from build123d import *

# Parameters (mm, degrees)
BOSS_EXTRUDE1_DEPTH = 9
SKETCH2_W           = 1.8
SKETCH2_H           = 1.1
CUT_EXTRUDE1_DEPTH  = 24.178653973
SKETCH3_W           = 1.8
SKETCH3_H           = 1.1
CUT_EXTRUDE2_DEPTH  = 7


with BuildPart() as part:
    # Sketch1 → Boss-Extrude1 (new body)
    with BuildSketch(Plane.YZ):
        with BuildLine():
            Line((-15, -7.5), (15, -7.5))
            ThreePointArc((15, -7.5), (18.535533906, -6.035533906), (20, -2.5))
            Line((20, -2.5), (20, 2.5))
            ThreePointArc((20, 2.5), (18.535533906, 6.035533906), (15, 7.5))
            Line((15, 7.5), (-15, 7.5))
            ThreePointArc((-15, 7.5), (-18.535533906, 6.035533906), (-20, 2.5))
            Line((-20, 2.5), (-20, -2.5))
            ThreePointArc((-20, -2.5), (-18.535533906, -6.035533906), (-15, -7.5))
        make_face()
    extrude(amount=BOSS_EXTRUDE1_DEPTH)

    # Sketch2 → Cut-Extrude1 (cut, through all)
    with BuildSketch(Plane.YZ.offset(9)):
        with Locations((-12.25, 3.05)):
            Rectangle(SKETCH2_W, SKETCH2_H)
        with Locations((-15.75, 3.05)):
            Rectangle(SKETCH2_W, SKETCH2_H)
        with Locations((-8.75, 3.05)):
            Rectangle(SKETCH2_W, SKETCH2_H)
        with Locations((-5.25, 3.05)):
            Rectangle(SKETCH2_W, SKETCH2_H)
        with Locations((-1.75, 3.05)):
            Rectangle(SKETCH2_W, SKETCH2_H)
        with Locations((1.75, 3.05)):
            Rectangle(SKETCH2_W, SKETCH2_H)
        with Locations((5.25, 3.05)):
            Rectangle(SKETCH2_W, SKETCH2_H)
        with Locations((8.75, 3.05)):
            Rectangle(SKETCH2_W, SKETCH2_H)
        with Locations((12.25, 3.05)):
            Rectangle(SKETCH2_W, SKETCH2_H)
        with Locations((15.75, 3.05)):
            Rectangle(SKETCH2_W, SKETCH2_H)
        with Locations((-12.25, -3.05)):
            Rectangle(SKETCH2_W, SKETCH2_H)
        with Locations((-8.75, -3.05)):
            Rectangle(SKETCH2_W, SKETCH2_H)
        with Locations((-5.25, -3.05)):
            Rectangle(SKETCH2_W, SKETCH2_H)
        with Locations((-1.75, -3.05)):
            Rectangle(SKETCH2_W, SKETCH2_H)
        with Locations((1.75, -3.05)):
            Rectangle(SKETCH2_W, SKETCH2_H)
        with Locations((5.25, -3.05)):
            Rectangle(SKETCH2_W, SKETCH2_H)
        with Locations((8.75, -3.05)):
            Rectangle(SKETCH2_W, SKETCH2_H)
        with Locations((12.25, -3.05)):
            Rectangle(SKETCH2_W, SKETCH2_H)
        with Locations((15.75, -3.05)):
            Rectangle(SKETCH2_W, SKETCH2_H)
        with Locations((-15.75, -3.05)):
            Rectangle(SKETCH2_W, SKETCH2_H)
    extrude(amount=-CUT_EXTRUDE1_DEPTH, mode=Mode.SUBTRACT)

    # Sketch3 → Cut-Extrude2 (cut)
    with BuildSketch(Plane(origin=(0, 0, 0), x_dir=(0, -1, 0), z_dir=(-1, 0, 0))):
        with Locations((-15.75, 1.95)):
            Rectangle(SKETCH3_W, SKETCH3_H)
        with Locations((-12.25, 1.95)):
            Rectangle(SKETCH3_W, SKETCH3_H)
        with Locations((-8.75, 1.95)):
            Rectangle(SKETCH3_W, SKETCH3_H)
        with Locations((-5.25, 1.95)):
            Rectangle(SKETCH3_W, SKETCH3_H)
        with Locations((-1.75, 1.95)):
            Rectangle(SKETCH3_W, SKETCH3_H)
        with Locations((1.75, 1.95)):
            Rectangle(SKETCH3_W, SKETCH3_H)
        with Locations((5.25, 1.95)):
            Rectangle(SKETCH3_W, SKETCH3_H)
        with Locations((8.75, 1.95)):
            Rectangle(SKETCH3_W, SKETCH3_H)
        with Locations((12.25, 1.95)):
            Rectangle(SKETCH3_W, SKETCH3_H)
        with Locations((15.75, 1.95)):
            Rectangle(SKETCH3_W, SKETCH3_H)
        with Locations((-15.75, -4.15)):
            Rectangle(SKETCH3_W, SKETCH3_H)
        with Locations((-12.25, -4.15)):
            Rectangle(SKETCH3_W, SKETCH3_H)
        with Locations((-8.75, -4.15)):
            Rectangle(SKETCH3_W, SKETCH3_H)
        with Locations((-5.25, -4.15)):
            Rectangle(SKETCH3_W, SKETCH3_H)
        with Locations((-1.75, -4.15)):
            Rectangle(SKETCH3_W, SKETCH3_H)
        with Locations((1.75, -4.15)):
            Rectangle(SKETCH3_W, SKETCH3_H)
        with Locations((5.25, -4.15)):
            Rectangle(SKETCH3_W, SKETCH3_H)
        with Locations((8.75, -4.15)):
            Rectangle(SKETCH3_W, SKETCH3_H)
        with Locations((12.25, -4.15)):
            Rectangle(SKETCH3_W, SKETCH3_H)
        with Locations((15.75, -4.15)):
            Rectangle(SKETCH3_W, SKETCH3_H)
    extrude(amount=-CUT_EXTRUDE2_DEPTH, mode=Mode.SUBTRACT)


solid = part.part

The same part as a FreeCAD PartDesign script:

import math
import FreeCAD as App
import Part
import Sketcher

doc = App.newDocument("Part")
body = doc.addObject("PartDesign::Body", "Body")

sketch1 = doc.addObject("Sketcher::SketchObject", "Sketch")
body.addObject(sketch1)
sketch1.AttachmentSupport = (doc.YZ_Plane, [""])
sketch1.MapMode = "FlatFace"
sketch1.addGeometry(Part.LineSegment(App.Vector(-15, -7.5, 0), App.Vector(15, -7.5, 0)), False)
sketch1.addGeometry(Part.ArcOfCircle(Part.Circle(App.Vector(15, -2.5, 0), App.Vector(0, 0, 1), 5), math.radians(-90), math.radians(0)), False)
sketch1.addGeometry(Part.LineSegment(App.Vector(20, -2.5, 0), App.Vector(20, 2.5, 0)), False)
sketch1.addGeometry(Part.ArcOfCircle(Part.Circle(App.Vector(15, 2.5, 0), App.Vector(0, 0, 1), 5), math.radians(0), math.radians(90)), False)
sketch1.addGeometry(Part.LineSegment(App.Vector(15, 7.5, 0), App.Vector(-15, 7.5, 0)), False)
sketch1.addGeometry(Part.ArcOfCircle(Part.Circle(App.Vector(-15, 2.5, 0), App.Vector(0, 0, 1), 5), math.radians(90), math.radians(180)), False)
sketch1.addGeometry(Part.LineSegment(App.Vector(-20, 2.5, 0), App.Vector(-20, -2.5, 0)), False)
sketch1.addGeometry(Part.ArcOfCircle(Part.Circle(App.Vector(-15, -2.5, 0), App.Vector(0, 0, 1), 5), math.radians(180), math.radians(270)), False)
sketch1.addConstraint(Sketcher.Constraint("Tangent", 0, 2, 1, 1))
sketch1.addConstraint(Sketcher.Constraint("Tangent", 1, 2, 2, 1))
sketch1.addConstraint(Sketcher.Constraint("Tangent", 2, 2, 3, 1))
sketch1.addConstraint(Sketcher.Constraint("Tangent", 3, 2, 4, 1))
sketch1.addConstraint(Sketcher.Constraint("Tangent", 4, 2, 5, 1))
sketch1.addConstraint(Sketcher.Constraint("Tangent", 5, 2, 6, 1))
sketch1.addConstraint(Sketcher.Constraint("Tangent", 6, 2, 7, 1))
sketch1.addConstraint(Sketcher.Constraint("Tangent", 7, 2, 0, 1))
sketch1.addConstraint(Sketcher.Constraint("Horizontal", 0))
sketch1.addConstraint(Sketcher.Constraint("Vertical", 2))
sketch1.addConstraint(Sketcher.Constraint("Horizontal", 4))
sketch1.addConstraint(Sketcher.Constraint("Vertical", 6))
sketch1.addConstraint(Sketcher.Constraint("Equal", 1, 3))
sketch1.addConstraint(Sketcher.Constraint("Equal", 3, 5))
sketch1.addConstraint(Sketcher.Constraint("Equal", 5, 7))
sketch1.addConstraint(Sketcher.Constraint("Symmetric", 1, 3, 5, 3, -1, 1))
sketch1.addConstraint(Sketcher.Constraint("Radius", 1, 5.0))
sketch1.addConstraint(Sketcher.Constraint("DistanceX", 0, 1, 0, 2, 30.0))
sketch1.addConstraint(Sketcher.Constraint("DistanceY", 2, 1, 2, 2, 5.0))
pad1 = doc.addObject("PartDesign::Pad", "Pad")
body.addObject(pad1)
pad1.Profile = sketch1
pad1.Length = 9

sketch2 = doc.addObject("Sketcher::SketchObject", "Sketch001")
body.addObject(sketch2)
sketch2.AttachmentSupport = (doc.YZ_Plane, [""])
sketch2.MapMode = "FlatFace"
sketch2.AttachmentOffset = App.Placement(App.Vector(0, 0, 9), App.Rotation())
sketch2.addGeometry(Part.LineSegment(App.Vector(-13.15, 3.6, 0), App.Vector(-13.15, 2.5, 0)), False)
sketch2.addGeometry(Part.LineSegment(App.Vector(-13.15, 2.5, 0), App.Vector(-11.35, 2.5, 0)), False)
sketch2.addGeometry(Part.LineSegment(App.Vector(-11.35, 2.5, 0), App.Vector(-11.35, 3.6, 0)), False)
sketch2.addGeometry(Part.LineSegment(App.Vector(-11.35, 3.6, 0), App.Vector(-13.15, 3.6, 0)), False)
sketch2.addGeometry(Part.LineSegment(App.Vector(-16.65, 3.6, 0), App.Vector(-16.65, 2.5, 0)), False)
sketch2.addGeometry(Part.LineSegment(App.Vector(-16.65, 2.5, 0), App.Vector(-14.85, 2.5, 0)), False)
sketch2.addGeometry(Part.LineSegment(App.Vector(-14.85, 2.5, 0), App.Vector(-14.85, 3.6, 0)), False)
sketch2.addGeometry(Part.LineSegment(App.Vector(-14.85, 3.6, 0), App.Vector(-16.65, 3.6, 0)), False)
sketch2.addGeometry(Part.LineSegment(App.Vector(-9.65, 3.6, 0), App.Vector(-9.65, 2.5, 0)), False)
sketch2.addGeometry(Part.LineSegment(App.Vector(-9.65, 2.5, 0), App.Vector(-7.85, 2.5, 0)), False)
sketch2.addGeometry(Part.LineSegment(App.Vector(-7.85, 2.5, 0), App.Vector(-7.85, 3.6, 0)), False)
sketch2.addGeometry(Part.LineSegment(App.Vector(-7.85, 3.6, 0), App.Vector(-9.65, 3.6, 0)), False)
sketch2.addGeometry(Part.LineSegment(App.Vector(-6.15, 3.6, 0), App.Vector(-6.15, 2.5, 0)), False)
sketch2.addGeometry(Part.LineSegment(App.Vector(-6.15, 2.5, 0), App.Vector(-4.35, 2.5, 0)), False)
sketch2.addGeometry(Part.LineSegment(App.Vector(-4.35, 2.5, 0), App.Vector(-4.35, 3.6, 0)), False)
sketch2.addGeometry(Part.LineSegment(App.Vector(-4.35, 3.6, 0), App.Vector(-6.15, 3.6, 0)), False)
sketch2.addGeometry(Part.LineSegment(App.Vector(-2.65, 3.6, 0), App.Vector(-2.65, 2.5, 0)), False)
sketch2.addGeometry(Part.LineSegment(App.Vector(-2.65, 2.5, 0), App.Vector(-0.85, 2.5, 0)), False)
sketch2.addGeometry(Part.LineSegment(App.Vector(-0.85, 2.5, 0), App.Vector(-0.85, 3.6, 0)), False)
sketch2.addGeometry(Part.LineSegment(App.Vector(-0.85, 3.6, 0), App.Vector(-2.65, 3.6, 0)), False)
sketch2.addGeometry(Part.LineSegment(App.Vector(0.85, 3.6, 0), App.Vector(0.85, 2.5, 0)), False)
sketch2.addGeometry(Part.LineSegment(App.Vector(0.85, 2.5, 0), App.Vector(2.65, 2.5, 0)), False)
sketch2.addGeometry(Part.LineSegment(App.Vector(2.65, 2.5, 0), App.Vector(2.65, 3.6, 0)), False)
sketch2.addGeometry(Part.LineSegment(App.Vector(2.65, 3.6, 0), App.Vector(0.85, 3.6, 0)), False)
sketch2.addGeometry(Part.LineSegment(App.Vector(4.35, 3.6, 0), App.Vector(4.35, 2.5, 0)), False)
sketch2.addGeometry(Part.LineSegment(App.Vector(4.35, 2.5, 0), App.Vector(6.15, 2.5, 0)), False)
sketch2.addGeometry(Part.LineSegment(App.Vector(6.15, 2.5, 0), App.Vector(6.15, 3.6, 0)), False)
sketch2.addGeometry(Part.LineSegment(App.Vector(6.15, 3.6, 0), App.Vector(4.35, 3.6, 0)), False)
sketch2.addGeometry(Part.LineSegment(App.Vector(7.85, 3.6, 0), App.Vector(7.85, 2.5, 0)), False)
sketch2.addGeometry(Part.LineSegment(App.Vector(7.85, 2.5, 0), App.Vector(9.65, 2.5, 0)), False)
sketch2.addGeometry(Part.LineSegment(App.Vector(9.65, 2.5, 0), App.Vector(9.65, 3.6, 0)), False)
sketch2.addGeometry(Part.LineSegment(App.Vector(9.65, 3.6, 0), App.Vector(7.85, 3.6, 0)), False)
sketch2.addGeometry(Part.LineSegment(App.Vector(11.35, 3.6, 0), App.Vector(11.35, 2.5, 0)), False)
sketch2.addGeometry(Part.LineSegment(App.Vector(11.35, 2.5, 0), App.Vector(13.15, 2.5, 0)), False)
sketch2.addGeometry(Part.LineSegment(App.Vector(13.15, 2.5, 0), App.Vector(13.15, 3.6, 0)), False)
sketch2.addGeometry(Part.LineSegment(App.Vector(13.15, 3.6, 0), App.Vector(11.35, 3.6, 0)), False)
sketch2.addGeometry(Part.LineSegment(App.Vector(14.85, 3.6, 0), App.Vector(14.85, 2.5, 0)), False)
sketch2.addGeometry(Part.LineSegment(App.Vector(14.85, 2.5, 0), App.Vector(16.65, 2.5, 0)), False)
sketch2.addGeometry(Part.LineSegment(App.Vector(16.65, 2.5, 0), App.Vector(16.65, 3.6, 0)), False)
sketch2.addGeometry(Part.LineSegment(App.Vector(16.65, 3.6, 0), App.Vector(14.85, 3.6, 0)), False)
sketch2.addGeometry(Part.LineSegment(App.Vector(-13.15, -2.5, 0), App.Vector(-13.15, -3.6, 0)), False)
sketch2.addGeometry(Part.LineSegment(App.Vector(-13.15, -3.6, 0), App.Vector(-11.35, -3.6, 0)), False)
sketch2.addGeometry(Part.LineSegment(App.Vector(-11.35, -3.6, 0), App.Vector(-11.35, -2.5, 0)), False)
sketch2.addGeometry(Part.LineSegment(App.Vector(-11.35, -2.5, 0), App.Vector(-13.15, -2.5, 0)), False)
sketch2.addGeometry(Part.LineSegment(App.Vector(-9.65, -2.5, 0), App.Vector(-9.65, -3.6, 0)), False)
sketch2.addGeometry(Part.LineSegment(App.Vector(-9.65, -3.6, 0), App.Vector(-7.85, -3.6, 0)), False)
sketch2.addGeometry(Part.LineSegment(App.Vector(-7.85, -3.6, 0), App.Vector(-7.85, -2.5, 0)), False)
sketch2.addGeometry(Part.LineSegment(App.Vector(-7.85, -2.5, 0), App.Vector(-9.65, -2.5, 0)), False)
sketch2.addGeometry(Part.LineSegment(App.Vector(-6.15, -2.5, 0), App.Vector(-6.15, -3.6, 0)), False)
sketch2.addGeometry(Part.LineSegment(App.Vector(-6.15, -3.6, 0), App.Vector(-4.35, -3.6, 0)), False)
sketch2.addGeometry(Part.LineSegment(App.Vector(-4.35, -3.6, 0), App.Vector(-4.35, -2.5, 0)), False)
sketch2.addGeometry(Part.LineSegment(App.Vector(-4.35, -2.5, 0), App.Vector(-6.15, -2.5, 0)), False)
sketch2.addGeometry(Part.LineSegment(App.Vector(-2.65, -2.5, 0), App.Vector(-2.65, -3.6, 0)), False)
sketch2.addGeometry(Part.LineSegment(App.Vector(-2.65, -3.6, 0), App.Vector(-0.85, -3.6, 0)), False)
sketch2.addGeometry(Part.LineSegment(App.Vector(-0.85, -3.6, 0), App.Vector(-0.85, -2.5, 0)), False)
sketch2.addGeometry(Part.LineSegment(App.Vector(-0.85, -2.5, 0), App.Vector(-2.65, -2.5, 0)), False)
sketch2.addGeometry(Part.LineSegment(App.Vector(0.85, -2.5, 0), App.Vector(0.85, -3.6, 0)), False)
sketch2.addGeometry(Part.LineSegment(App.Vector(0.85, -3.6, 0), App.Vector(2.65, -3.6, 0)), False)
sketch2.addGeometry(Part.LineSegment(App.Vector(2.65, -3.6, 0), App.Vector(2.65, -2.5, 0)), False)
sketch2.addGeometry(Part.LineSegment(App.Vector(2.65, -2.5, 0), App.Vector(0.85, -2.5, 0)), False)
sketch2.addGeometry(Part.LineSegment(App.Vector(4.35, -2.5, 0), App.Vector(4.35, -3.6, 0)), False)
sketch2.addGeometry(Part.LineSegment(App.Vector(4.35, -3.6, 0), App.Vector(6.15, -3.6, 0)), False)
sketch2.addGeometry(Part.LineSegment(App.Vector(6.15, -3.6, 0), App.Vector(6.15, -2.5, 0)), False)
sketch2.addGeometry(Part.LineSegment(App.Vector(6.15, -2.5, 0), App.Vector(4.35, -2.5, 0)), False)
sketch2.addGeometry(Part.LineSegment(App.Vector(7.85, -2.5, 0), App.Vector(7.85, -3.6, 0)), False)
sketch2.addGeometry(Part.LineSegment(App.Vector(7.85, -3.6, 0), App.Vector(9.65, -3.6, 0)), False)
sketch2.addGeometry(Part.LineSegment(App.Vector(9.65, -3.6, 0), App.Vector(9.65, -2.5, 0)), False)
sketch2.addGeometry(Part.LineSegment(App.Vector(9.65, -2.5, 0), App.Vector(7.85, -2.5, 0)), False)
sketch2.addGeometry(Part.LineSegment(App.Vector(11.35, -2.5, 0), App.Vector(11.35, -3.6, 0)), False)
sketch2.addGeometry(Part.LineSegment(App.Vector(11.35, -3.6, 0), App.Vector(13.15, -3.6, 0)), False)
sketch2.addGeometry(Part.LineSegment(App.Vector(13.15, -3.6, 0), App.Vector(13.15, -2.5, 0)), False)
sketch2.addGeometry(Part.LineSegment(App.Vector(13.15, -2.5, 0), App.Vector(11.35, -2.5, 0)), False)
sketch2.addGeometry(Part.LineSegment(App.Vector(14.85, -2.5, 0), App.Vector(14.85, -3.6, 0)), False)
sketch2.addGeometry(Part.LineSegment(App.Vector(14.85, -3.6, 0), App.Vector(16.65, -3.6, 0)), False)
sketch2.addGeometry(Part.LineSegment(App.Vector(16.65, -3.6, 0), App.Vector(16.65, -2.5, 0)), False)
sketch2.addGeometry(Part.LineSegment(App.Vector(16.65, -2.5, 0), App.Vector(14.85, -2.5, 0)), False)
sketch2.addGeometry(Part.LineSegment(App.Vector(-16.65, -2.5, 0), App.Vector(-16.65, -3.6, 0)), False)
sketch2.addGeometry(Part.LineSegment(App.Vector(-16.65, -3.6, 0), App.Vector(-14.85, -3.6, 0)), False)
sketch2.addGeometry(Part.LineSegment(App.Vector(-14.85, -3.6, 0), App.Vector(-14.85, -2.5, 0)), False)
sketch2.addGeometry(Part.LineSegment(App.Vector(-14.85, -2.5, 0), App.Vector(-16.65, -2.5, 0)), False)
sketch2.addConstraint(Sketcher.Constraint("Coincident", 0, 2, 1, 1))
sketch2.addConstraint(Sketcher.Constraint("Coincident", 1, 2, 2, 1))
sketch2.addConstraint(Sketcher.Constraint("Coincident", 2, 2, 3, 1))
sketch2.addConstraint(Sketcher.Constraint("Coincident", 3, 2, 0, 1))
sketch2.addConstraint(Sketcher.Constraint("Coincident", 4, 2, 5, 1))
sketch2.addConstraint(Sketcher.Constraint("Coincident", 5, 2, 6, 1))
sketch2.addConstraint(Sketcher.Constraint("Coincident", 6, 2, 7, 1))
sketch2.addConstraint(Sketcher.Constraint("Coincident", 7, 2, 4, 1))
sketch2.addConstraint(Sketcher.Constraint("Coincident", 8, 2, 9, 1))
sketch2.addConstraint(Sketcher.Constraint("Coincident", 9, 2, 10, 1))
sketch2.addConstraint(Sketcher.Constraint("Coincident", 10, 2, 11, 1))
sketch2.addConstraint(Sketcher.Constraint("Coincident", 11, 2, 8, 1))
sketch2.addConstraint(Sketcher.Constraint("Coincident", 12, 2, 13, 1))
sketch2.addConstraint(Sketcher.Constraint("Coincident", 13, 2, 14, 1))
sketch2.addConstraint(Sketcher.Constraint("Coincident", 14, 2, 15, 1))
sketch2.addConstraint(Sketcher.Constraint("Coincident", 15, 2, 12, 1))
sketch2.addConstraint(Sketcher.Constraint("Coincident", 16, 2, 17, 1))
sketch2.addConstraint(Sketcher.Constraint("Coincident", 17, 2, 18, 1))
sketch2.addConstraint(Sketcher.Constraint("Coincident", 18, 2, 19, 1))
sketch2.addConstraint(Sketcher.Constraint("Coincident", 19, 2, 16, 1))
sketch2.addConstraint(Sketcher.Constraint("Coincident", 20, 2, 21, 1))
sketch2.addConstraint(Sketcher.Constraint("Coincident", 21, 2, 22, 1))
sketch2.addConstraint(Sketcher.Constraint("Coincident", 22, 2, 23, 1))
sketch2.addConstraint(Sketcher.Constraint("Coincident", 23, 2, 20, 1))
sketch2.addConstraint(Sketcher.Constraint("Coincident", 24, 2, 25, 1))
sketch2.addConstraint(Sketcher.Constraint("Coincident", 25, 2, 26, 1))
sketch2.addConstraint(Sketcher.Constraint("Coincident", 26, 2, 27, 1))
sketch2.addConstraint(Sketcher.Constraint("Coincident", 27, 2, 24, 1))
sketch2.addConstraint(Sketcher.Constraint("Coincident", 28, 2, 29, 1))
sketch2.addConstraint(Sketcher.Constraint("Coincident", 29, 2, 30, 1))
sketch2.addConstraint(Sketcher.Constraint("Coincident", 30, 2, 31, 1))
sketch2.addConstraint(Sketcher.Constraint("Coincident", 31, 2, 28, 1))
sketch2.addConstraint(Sketcher.Constraint("Coincident", 32, 2, 33, 1))
sketch2.addConstraint(Sketcher.Constraint("Coincident", 33, 2, 34, 1))
sketch2.addConstraint(Sketcher.Constraint("Coincident", 34, 2, 35, 1))
sketch2.addConstraint(Sketcher.Constraint("Coincident", 35, 2, 32, 1))
sketch2.addConstraint(Sketcher.Constraint("Coincident", 36, 2, 37, 1))
sketch2.addConstraint(Sketcher.Constraint("Coincident", 37, 2, 38, 1))
sketch2.addConstraint(Sketcher.Constraint("Coincident", 38, 2, 39, 1))
sketch2.addConstraint(Sketcher.Constraint("Coincident", 39, 2, 36, 1))
sketch2.addConstraint(Sketcher.Constraint("Coincident", 40, 2, 41, 1))
sketch2.addConstraint(Sketcher.Constraint("Coincident", 41, 2, 42, 1))
sketch2.addConstraint(Sketcher.Constraint("Coincident", 42, 2, 43, 1))
sketch2.addConstraint(Sketcher.Constraint("Coincident", 43, 2, 40, 1))
sketch2.addConstraint(Sketcher.Constraint("Coincident", 44, 2, 45, 1))
sketch2.addConstraint(Sketcher.Constraint("Coincident", 45, 2, 46, 1))
sketch2.addConstraint(Sketcher.Constraint("Coincident", 46, 2, 47, 1))
sketch2.addConstraint(Sketcher.Constraint("Coincident", 47, 2, 44, 1))
sketch2.addConstraint(Sketcher.Constraint("Coincident", 48, 2, 49, 1))
sketch2.addConstraint(Sketcher.Constraint("Coincident", 49, 2, 50, 1))
sketch2.addConstraint(Sketcher.Constraint("Coincident", 50, 2, 51, 1))
sketch2.addConstraint(Sketcher.Constraint("Coincident", 51, 2, 48, 1))
sketch2.addConstraint(Sketcher.Constraint("Coincident", 52, 2, 53, 1))
sketch2.addConstraint(Sketcher.Constraint("Coincident", 53, 2, 54, 1))
sketch2.addConstraint(Sketcher.Constraint("Coincident", 54, 2, 55, 1))
sketch2.addConstraint(Sketcher.Constraint("Coincident", 55, 2, 52, 1))
sketch2.addConstraint(Sketcher.Constraint("Coincident", 56, 2, 57, 1))
sketch2.addConstraint(Sketcher.Constraint("Coincident", 57, 2, 58, 1))
sketch2.addConstraint(Sketcher.Constraint("Coincident", 58, 2, 59, 1))
sketch2.addConstraint(Sketcher.Constraint("Coincident", 59, 2, 56, 1))
sketch2.addConstraint(Sketcher.Constraint("Coincident", 60, 2, 61, 1))
sketch2.addConstraint(Sketcher.Constraint("Coincident", 61, 2, 62, 1))
sketch2.addConstraint(Sketcher.Constraint("Coincident", 62, 2, 63, 1))
sketch2.addConstraint(Sketcher.Constraint("Coincident", 63, 2, 60, 1))
sketch2.addConstraint(Sketcher.Constraint("Coincident", 64, 2, 65, 1))
sketch2.addConstraint(Sketcher.Constraint("Coincident", 65, 2, 66, 1))
sketch2.addConstraint(Sketcher.Constraint("Coincident", 66, 2, 67, 1))
sketch2.addConstraint(Sketcher.Constraint("Coincident", 67, 2, 64, 1))
sketch2.addConstraint(Sketcher.Constraint("Coincident", 68, 2, 69, 1))
sketch2.addConstraint(Sketcher.Constraint("Coincident", 69, 2, 70, 1))
sketch2.addConstraint(Sketcher.Constraint("Coincident", 70, 2, 71, 1))
sketch2.addConstraint(Sketcher.Constraint("Coincident", 71, 2, 68, 1))
sketch2.addConstraint(Sketcher.Constraint("Coincident", 72, 2, 73, 1))
sketch2.addConstraint(Sketcher.Constraint("Coincident", 73, 2, 74, 1))
sketch2.addConstraint(Sketcher.Constraint("Coincident", 74, 2, 75, 1))
sketch2.addConstraint(Sketcher.Constraint("Coincident", 75, 2, 72, 1))
sketch2.addConstraint(Sketcher.Constraint("Coincident", 76, 2, 77, 1))
sketch2.addConstraint(Sketcher.Constraint("Coincident", 77, 2, 78, 1))
sketch2.addConstraint(Sketcher.Constraint("Coincident", 78, 2, 79, 1))
sketch2.addConstraint(Sketcher.Constraint("Coincident", 79, 2, 76, 1))
sketch2.addConstraint(Sketcher.Constraint("Vertical", 0))
sketch2.addConstraint(Sketcher.Constraint("Horizontal", 1))
sketch2.addConstraint(Sketcher.Constraint("Vertical", 2))
sketch2.addConstraint(Sketcher.Constraint("Horizontal", 3))
sketch2.addConstraint(Sketcher.Constraint("Vertical", 4))
sketch2.addConstraint(Sketcher.Constraint("Horizontal", 5))
sketch2.addConstraint(Sketcher.Constraint("Vertical", 6))
sketch2.addConstraint(Sketcher.Constraint("Horizontal", 7))
sketch2.addConstraint(Sketcher.Constraint("Vertical", 8))
sketch2.addConstraint(Sketcher.Constraint("Horizontal", 9))
sketch2.addConstraint(Sketcher.Constraint("Vertical", 10))
sketch2.addConstraint(Sketcher.Constraint("Horizontal", 11))
sketch2.addConstraint(Sketcher.Constraint("Vertical", 12))
sketch2.addConstraint(Sketcher.Constraint("Horizontal", 13))
sketch2.addConstraint(Sketcher.Constraint("Vertical", 14))
sketch2.addConstraint(Sketcher.Constraint("Horizontal", 15))
sketch2.addConstraint(Sketcher.Constraint("Vertical", 16))
sketch2.addConstraint(Sketcher.Constraint("Horizontal", 17))
sketch2.addConstraint(Sketcher.Constraint("Vertical", 18))
sketch2.addConstraint(Sketcher.Constraint("Horizontal", 19))
sketch2.addConstraint(Sketcher.Constraint("Vertical", 20))
sketch2.addConstraint(Sketcher.Constraint("Horizontal", 21))
sketch2.addConstraint(Sketcher.Constraint("Vertical", 22))
sketch2.addConstraint(Sketcher.Constraint("Horizontal", 23))
sketch2.addConstraint(Sketcher.Constraint("Vertical", 24))
sketch2.addConstraint(Sketcher.Constraint("Horizontal", 25))
sketch2.addConstraint(Sketcher.Constraint("Vertical", 26))
sketch2.addConstraint(Sketcher.Constraint("Horizontal", 27))
sketch2.addConstraint(Sketcher.Constraint("Vertical", 28))
sketch2.addConstraint(Sketcher.Constraint("Horizontal", 29))
sketch2.addConstraint(Sketcher.Constraint("Vertical", 30))
sketch2.addConstraint(Sketcher.Constraint("Horizontal", 31))
sketch2.addConstraint(Sketcher.Constraint("Vertical", 32))
sketch2.addConstraint(Sketcher.Constraint("Horizontal", 33))
sketch2.addConstraint(Sketcher.Constraint("Vertical", 34))
sketch2.addConstraint(Sketcher.Constraint("Horizontal", 35))
sketch2.addConstraint(Sketcher.Constraint("Vertical", 36))
sketch2.addConstraint(Sketcher.Constraint("Horizontal", 37))
sketch2.addConstraint(Sketcher.Constraint("Vertical", 38))
sketch2.addConstraint(Sketcher.Constraint("Horizontal", 39))
sketch2.addConstraint(Sketcher.Constraint("Vertical", 40))
sketch2.addConstraint(Sketcher.Constraint("Horizontal", 41))
sketch2.addConstraint(Sketcher.Constraint("Vertical", 42))
sketch2.addConstraint(Sketcher.Constraint("Horizontal", 43))
sketch2.addConstraint(Sketcher.Constraint("Vertical", 44))
sketch2.addConstraint(Sketcher.Constraint("Horizontal", 45))
sketch2.addConstraint(Sketcher.Constraint("Vertical", 46))
sketch2.addConstraint(Sketcher.Constraint("Horizontal", 47))
sketch2.addConstraint(Sketcher.Constraint("Vertical", 48))
sketch2.addConstraint(Sketcher.Constraint("Horizontal", 49))
sketch2.addConstraint(Sketcher.Constraint("Vertical", 50))
sketch2.addConstraint(Sketcher.Constraint("Horizontal", 51))
sketch2.addConstraint(Sketcher.Constraint("Vertical", 52))
sketch2.addConstraint(Sketcher.Constraint("Horizontal", 53))
sketch2.addConstraint(Sketcher.Constraint("Vertical", 54))
sketch2.addConstraint(Sketcher.Constraint("Horizontal", 55))
sketch2.addConstraint(Sketcher.Constraint("Vertical", 56))
sketch2.addConstraint(Sketcher.Constraint("Horizontal", 57))
sketch2.addConstraint(Sketcher.Constraint("Vertical", 58))
sketch2.addConstraint(Sketcher.Constraint("Horizontal", 59))
sketch2.addConstraint(Sketcher.Constraint("Vertical", 60))
sketch2.addConstraint(Sketcher.Constraint("Horizontal", 61))
sketch2.addConstraint(Sketcher.Constraint("Vertical", 62))
sketch2.addConstraint(Sketcher.Constraint("Horizontal", 63))
sketch2.addConstraint(Sketcher.Constraint("Vertical", 64))
sketch2.addConstraint(Sketcher.Constraint("Horizontal", 65))
sketch2.addConstraint(Sketcher.Constraint("Vertical", 66))
sketch2.addConstraint(Sketcher.Constraint("Horizontal", 67))
sketch2.addConstraint(Sketcher.Constraint("Vertical", 68))
sketch2.addConstraint(Sketcher.Constraint("Horizontal", 69))
sketch2.addConstraint(Sketcher.Constraint("Vertical", 70))
sketch2.addConstraint(Sketcher.Constraint("Horizontal", 71))
sketch2.addConstraint(Sketcher.Constraint("Vertical", 72))
sketch2.addConstraint(Sketcher.Constraint("Horizontal", 73))
sketch2.addConstraint(Sketcher.Constraint("Vertical", 74))
sketch2.addConstraint(Sketcher.Constraint("Horizontal", 75))
sketch2.addConstraint(Sketcher.Constraint("Vertical", 76))
sketch2.addConstraint(Sketcher.Constraint("Horizontal", 77))
sketch2.addConstraint(Sketcher.Constraint("Vertical", 78))
sketch2.addConstraint(Sketcher.Constraint("Horizontal", 79))
sketch2.addConstraint(Sketcher.Constraint("Symmetric", 34, 2, 40, 2, -1, 1))
sketch2.addConstraint(Sketcher.Constraint("Symmetric", 32, 2, 42, 2, -1, 1))
sketch2.addConstraint(Sketcher.Constraint("Symmetric", 30, 2, 44, 2, -1, 1))
sketch2.addConstraint(Sketcher.Constraint("Symmetric", 28, 2, 46, 2, -1, 1))
sketch2.addConstraint(Sketcher.Constraint("Symmetric", 26, 2, 48, 2, -1, 1))
sketch2.addConstraint(Sketcher.Constraint("Symmetric", 24, 2, 50, 2, -1, 1))
sketch2.addConstraint(Sketcher.Constraint("Symmetric", 22, 2, 52, 2, -1, 1))
sketch2.addConstraint(Sketcher.Constraint("Symmetric", 20, 2, 54, 2, -1, 1))
sketch2.addConstraint(Sketcher.Constraint("Symmetric", 18, 2, 56, 2, -1, 1))
sketch2.addConstraint(Sketcher.Constraint("Symmetric", 16, 2, 58, 2, -1, 1))
sketch2.addConstraint(Sketcher.Constraint("Symmetric", 14, 2, 60, 2, -1, 1))
sketch2.addConstraint(Sketcher.Constraint("Symmetric", 12, 2, 62, 2, -1, 1))
sketch2.addConstraint(Sketcher.Constraint("Symmetric", 10, 2, 64, 2, -1, 1))
sketch2.addConstraint(Sketcher.Constraint("Symmetric", 8, 2, 66, 2, -1, 1))
sketch2.addConstraint(Sketcher.Constraint("Symmetric", 2, 2, 68, 2, -1, 1))
sketch2.addConstraint(Sketcher.Constraint("Symmetric", 0, 2, 70, 2, -1, 1))
sketch2.addConstraint(Sketcher.Constraint("Symmetric", 6, 2, 72, 2, -1, 1))
sketch2.addConstraint(Sketcher.Constraint("Symmetric", 4, 2, 74, 2, -1, 1))
sketch2.addConstraint(Sketcher.Constraint("Symmetric", 38, 2, 76, 2, -1, 1))
sketch2.addConstraint(Sketcher.Constraint("Symmetric", 36, 2, 78, 2, -1, 1))
sketch2.addConstraint(Sketcher.Constraint("Symmetric", 17, 2, 20, 2, -2))
sketch2.addConstraint(Sketcher.Constraint("Symmetric", 19, 2, 22, 2, -2))
sketch2.addConstraint(Sketcher.Constraint("Symmetric", 13, 2, 24, 2, -2))
sketch2.addConstraint(Sketcher.Constraint("Symmetric", 15, 2, 26, 2, -2))
sketch2.addConstraint(Sketcher.Constraint("Symmetric", 9, 2, 28, 2, -2))
sketch2.addConstraint(Sketcher.Constraint("Symmetric", 11, 2, 30, 2, -2))
sketch2.addConstraint(Sketcher.Constraint("Symmetric", 1, 2, 32, 2, -2))
sketch2.addConstraint(Sketcher.Constraint("Symmetric", 3, 2, 34, 2, -2))
sketch2.addConstraint(Sketcher.Constraint("Symmetric", 5, 2, 36, 2, -2))
sketch2.addConstraint(Sketcher.Constraint("Symmetric", 7, 2, 38, 2, -2))
sketch2.addConstraint(Sketcher.Constraint("Horizontal", 1, 2, 4, 2))
sketch2.addConstraint(Sketcher.Constraint("Horizontal", 3, 2, 6, 2))
sketch2.addConstraint(Sketcher.Constraint("Horizontal", 5, 2, 8, 2))
sketch2.addConstraint(Sketcher.Constraint("Horizontal", 7, 2, 10, 2))
sketch2.addConstraint(Sketcher.Constraint("Horizontal", 9, 2, 12, 2))
sketch2.addConstraint(Sketcher.Constraint("Horizontal", 11, 2, 14, 2))
sketch2.addConstraint(Sketcher.Constraint("Horizontal", 13, 2, 16, 2))
sketch2.addConstraint(Sketcher.Constraint("Horizontal", 15, 2, 18, 2))
sketch2.addConstraint(Sketcher.Constraint("Equal", 3, 5))
sketch2.addConstraint(Sketcher.Constraint("Equal", 7, 9))
sketch2.addConstraint(Sketcher.Constraint("Equal", 11, 13))
sketch2.addConstraint(Sketcher.Constraint("Equal", 15, 17))
sketch2.addConstraint(Sketcher.Constraint("DistanceX", 1, 1, 1, 2, 1.8))
sketch2.addConstraint(Sketcher.Constraint("DistanceY", 0, 2, 0, 1, 1.1))
sketch2.addConstraint(Sketcher.Constraint("DistanceY", -1, 1, 0, 2, 2.5))
sketch2.addConstraint(Sketcher.Constraint("DistanceX", 0, 2, -1, 1, 13.15))
sketch2.addConstraint(Sketcher.Constraint("DistanceX", 4, 2, -1, 1, 16.65))
sketch2.addConstraint(Sketcher.Constraint("DistanceX", 8, 2, -1, 1, 9.65))
sketch2.addConstraint(Sketcher.Constraint("DistanceX", 12, 2, -1, 1, 6.15))
sketch2.addConstraint(Sketcher.Constraint("DistanceX", 16, 2, -1, 1, 2.65))
pocket1 = doc.addObject("PartDesign::Pocket", "Pocket")
body.addObject(pocket1)
pocket1.Profile = sketch2
pocket1.Type = "ThroughAll"

sketch3 = doc.addObject("Sketcher::SketchObject", "Sketch002")
body.addObject(sketch3)
sketch3.AttachmentSupport = (doc.YZ_Plane, [""])
sketch3.MapMode = "FlatFace"
sketch3.addGeometry(Part.LineSegment(App.Vector(16.65, 2.5, 0), App.Vector(16.65, 1.4, 0)), False)
sketch3.addGeometry(Part.LineSegment(App.Vector(16.65, 1.4, 0), App.Vector(14.85, 1.4, 0)), False)
sketch3.addGeometry(Part.LineSegment(App.Vector(14.85, 1.4, 0), App.Vector(14.85, 2.5, 0)), False)
sketch3.addGeometry(Part.LineSegment(App.Vector(14.85, 2.5, 0), App.Vector(16.65, 2.5, 0)), False)
sketch3.addGeometry(Part.LineSegment(App.Vector(13.15, 2.5, 0), App.Vector(13.15, 1.4, 0)), False)
sketch3.addGeometry(Part.LineSegment(App.Vector(13.15, 1.4, 0), App.Vector(11.35, 1.4, 0)), False)
sketch3.addGeometry(Part.LineSegment(App.Vector(11.35, 1.4, 0), App.Vector(11.35, 2.5, 0)), False)
sketch3.addGeometry(Part.LineSegment(App.Vector(11.35, 2.5, 0), App.Vector(13.15, 2.5, 0)), False)
sketch3.addGeometry(Part.LineSegment(App.Vector(9.65, 2.5, 0), App.Vector(9.65, 1.4, 0)), False)
sketch3.addGeometry(Part.LineSegment(App.Vector(9.65, 1.4, 0), App.Vector(7.85, 1.4, 0)), False)
sketch3.addGeometry(Part.LineSegment(App.Vector(7.85, 1.4, 0), App.Vector(7.85, 2.5, 0)), False)
sketch3.addGeometry(Part.LineSegment(App.Vector(7.85, 2.5, 0), App.Vector(9.65, 2.5, 0)), False)
sketch3.addGeometry(Part.LineSegment(App.Vector(6.15, 2.5, 0), App.Vector(6.15, 1.4, 0)), False)
sketch3.addGeometry(Part.LineSegment(App.Vector(6.15, 1.4, 0), App.Vector(4.35, 1.4, 0)), False)
sketch3.addGeometry(Part.LineSegment(App.Vector(4.35, 1.4, 0), App.Vector(4.35, 2.5, 0)), False)
sketch3.addGeometry(Part.LineSegment(App.Vector(4.35, 2.5, 0), App.Vector(6.15, 2.5, 0)), False)
sketch3.addGeometry(Part.LineSegment(App.Vector(2.65, 2.5, 0), App.Vector(2.65, 1.4, 0)), False)
sketch3.addGeometry(Part.LineSegment(App.Vector(2.65, 1.4, 0), App.Vector(0.85, 1.4, 0)), False)
sketch3.addGeometry(Part.LineSegment(App.Vector(0.85, 1.4, 0), App.Vector(0.85, 2.5, 0)), False)
sketch3.addGeometry(Part.LineSegment(App.Vector(0.85, 2.5, 0), App.Vector(2.65, 2.5, 0)), False)
sketch3.addGeometry(Part.LineSegment(App.Vector(-0.85, 2.5, 0), App.Vector(-0.85, 1.4, 0)), False)
sketch3.addGeometry(Part.LineSegment(App.Vector(-0.85, 1.4, 0), App.Vector(-2.65, 1.4, 0)), False)
sketch3.addGeometry(Part.LineSegment(App.Vector(-2.65, 1.4, 0), App.Vector(-2.65, 2.5, 0)), False)
sketch3.addGeometry(Part.LineSegment(App.Vector(-2.65, 2.5, 0), App.Vector(-0.85, 2.5, 0)), False)
sketch3.addGeometry(Part.LineSegment(App.Vector(-4.35, 2.5, 0), App.Vector(-4.35, 1.4, 0)), False)
sketch3.addGeometry(Part.LineSegment(App.Vector(-4.35, 1.4, 0), App.Vector(-6.15, 1.4, 0)), False)
sketch3.addGeometry(Part.LineSegment(App.Vector(-6.15, 1.4, 0), App.Vector(-6.15, 2.5, 0)), False)
sketch3.addGeometry(Part.LineSegment(App.Vector(-6.15, 2.5, 0), App.Vector(-4.35, 2.5, 0)), False)
sketch3.addGeometry(Part.LineSegment(App.Vector(-7.85, 2.5, 0), App.Vector(-7.85, 1.4, 0)), False)
sketch3.addGeometry(Part.LineSegment(App.Vector(-7.85, 1.4, 0), App.Vector(-9.65, 1.4, 0)), False)
sketch3.addGeometry(Part.LineSegment(App.Vector(-9.65, 1.4, 0), App.Vector(-9.65, 2.5, 0)), False)
sketch3.addGeometry(Part.LineSegment(App.Vector(-9.65, 2.5, 0), App.Vector(-7.85, 2.5, 0)), False)
sketch3.addGeometry(Part.LineSegment(App.Vector(-11.35, 2.5, 0), App.Vector(-11.35, 1.4, 0)), False)
sketch3.addGeometry(Part.LineSegment(App.Vector(-11.35, 1.4, 0), App.Vector(-13.15, 1.4, 0)), False)
sketch3.addGeometry(Part.LineSegment(App.Vector(-13.15, 1.4, 0), App.Vector(-13.15, 2.5, 0)), False)
sketch3.addGeometry(Part.LineSegment(App.Vector(-13.15, 2.5, 0), App.Vector(-11.35, 2.5, 0)), False)
sketch3.addGeometry(Part.LineSegment(App.Vector(-14.85, 2.5, 0), App.Vector(-14.85, 1.4, 0)), False)
sketch3.addGeometry(Part.LineSegment(App.Vector(-14.85, 1.4, 0), App.Vector(-16.65, 1.4, 0)), False)
sketch3.addGeometry(Part.LineSegment(App.Vector(-16.65, 1.4, 0), App.Vector(-16.65, 2.5, 0)), False)
sketch3.addGeometry(Part.LineSegment(App.Vector(-16.65, 2.5, 0), App.Vector(-14.85, 2.5, 0)), False)
sketch3.addGeometry(Part.LineSegment(App.Vector(16.65, -3.6, 0), App.Vector(16.65, -4.7, 0)), False)
sketch3.addGeometry(Part.LineSegment(App.Vector(16.65, -4.7, 0), App.Vector(14.85, -4.7, 0)), False)
sketch3.addGeometry(Part.LineSegment(App.Vector(14.85, -4.7, 0), App.Vector(14.85, -3.6, 0)), False)
sketch3.addGeometry(Part.LineSegment(App.Vector(14.85, -3.6, 0), App.Vector(16.65, -3.6, 0)), False)
sketch3.addGeometry(Part.LineSegment(App.Vector(13.15, -3.6, 0), App.Vector(13.15, -4.7, 0)), False)
sketch3.addGeometry(Part.LineSegment(App.Vector(13.15, -4.7, 0), App.Vector(11.35, -4.7, 0)), False)
sketch3.addGeometry(Part.LineSegment(App.Vector(11.35, -4.7, 0), App.Vector(11.35, -3.6, 0)), False)
sketch3.addGeometry(Part.LineSegment(App.Vector(11.35, -3.6, 0), App.Vector(13.15, -3.6, 0)), False)
sketch3.addGeometry(Part.LineSegment(App.Vector(9.65, -3.6, 0), App.Vector(9.65, -4.7, 0)), False)
sketch3.addGeometry(Part.LineSegment(App.Vector(9.65, -4.7, 0), App.Vector(7.85, -4.7, 0)), False)
sketch3.addGeometry(Part.LineSegment(App.Vector(7.85, -4.7, 0), App.Vector(7.85, -3.6, 0)), False)
sketch3.addGeometry(Part.LineSegment(App.Vector(7.85, -3.6, 0), App.Vector(9.65, -3.6, 0)), False)
sketch3.addGeometry(Part.LineSegment(App.Vector(6.15, -3.6, 0), App.Vector(6.15, -4.7, 0)), False)
sketch3.addGeometry(Part.LineSegment(App.Vector(6.15, -4.7, 0), App.Vector(4.35, -4.7, 0)), False)
sketch3.addGeometry(Part.LineSegment(App.Vector(4.35, -4.7, 0), App.Vector(4.35, -3.6, 0)), False)
sketch3.addGeometry(Part.LineSegment(App.Vector(4.35, -3.6, 0), App.Vector(6.15, -3.6, 0)), False)
sketch3.addGeometry(Part.LineSegment(App.Vector(2.65, -3.6, 0), App.Vector(2.65, -4.7, 0)), False)
sketch3.addGeometry(Part.LineSegment(App.Vector(2.65, -4.7, 0), App.Vector(0.85, -4.7, 0)), False)
sketch3.addGeometry(Part.LineSegment(App.Vector(0.85, -4.7, 0), App.Vector(0.85, -3.6, 0)), False)
sketch3.addGeometry(Part.LineSegment(App.Vector(0.85, -3.6, 0), App.Vector(2.65, -3.6, 0)), False)
sketch3.addGeometry(Part.LineSegment(App.Vector(-0.85, -3.6, 0), App.Vector(-0.85, -4.7, 0)), False)
sketch3.addGeometry(Part.LineSegment(App.Vector(-0.85, -4.7, 0), App.Vector(-2.65, -4.7, 0)), False)
sketch3.addGeometry(Part.LineSegment(App.Vector(-2.65, -4.7, 0), App.Vector(-2.65, -3.6, 0)), False)
sketch3.addGeometry(Part.LineSegment(App.Vector(-2.65, -3.6, 0), App.Vector(-0.85, -3.6, 0)), False)
sketch3.addGeometry(Part.LineSegment(App.Vector(-4.35, -3.6, 0), App.Vector(-4.35, -4.7, 0)), False)
sketch3.addGeometry(Part.LineSegment(App.Vector(-4.35, -4.7, 0), App.Vector(-6.15, -4.7, 0)), False)
sketch3.addGeometry(Part.LineSegment(App.Vector(-6.15, -4.7, 0), App.Vector(-6.15, -3.6, 0)), False)
sketch3.addGeometry(Part.LineSegment(App.Vector(-6.15, -3.6, 0), App.Vector(-4.35, -3.6, 0)), False)
sketch3.addGeometry(Part.LineSegment(App.Vector(-7.85, -3.6, 0), App.Vector(-7.85, -4.7, 0)), False)
sketch3.addGeometry(Part.LineSegment(App.Vector(-7.85, -4.7, 0), App.Vector(-9.65, -4.7, 0)), False)
sketch3.addGeometry(Part.LineSegment(App.Vector(-9.65, -4.7, 0), App.Vector(-9.65, -3.6, 0)), False)
sketch3.addGeometry(Part.LineSegment(App.Vector(-9.65, -3.6, 0), App.Vector(-7.85, -3.6, 0)), False)
sketch3.addGeometry(Part.LineSegment(App.Vector(-11.35, -3.6, 0), App.Vector(-11.35, -4.7, 0)), False)
sketch3.addGeometry(Part.LineSegment(App.Vector(-11.35, -4.7, 0), App.Vector(-13.15, -4.7, 0)), False)
sketch3.addGeometry(Part.LineSegment(App.Vector(-13.15, -4.7, 0), App.Vector(-13.15, -3.6, 0)), False)
sketch3.addGeometry(Part.LineSegment(App.Vector(-13.15, -3.6, 0), App.Vector(-11.35, -3.6, 0)), False)
sketch3.addGeometry(Part.LineSegment(App.Vector(-14.85, -3.6, 0), App.Vector(-14.85, -4.7, 0)), False)
sketch3.addGeometry(Part.LineSegment(App.Vector(-14.85, -4.7, 0), App.Vector(-16.65, -4.7, 0)), False)
sketch3.addGeometry(Part.LineSegment(App.Vector(-16.65, -4.7, 0), App.Vector(-16.65, -3.6, 0)), False)
sketch3.addGeometry(Part.LineSegment(App.Vector(-16.65, -3.6, 0), App.Vector(-14.85, -3.6, 0)), False)
sketch3.addConstraint(Sketcher.Constraint("Coincident", 0, 2, 1, 1))
sketch3.addConstraint(Sketcher.Constraint("Coincident", 1, 2, 2, 1))
sketch3.addConstraint(Sketcher.Constraint("Coincident", 2, 2, 3, 1))
sketch3.addConstraint(Sketcher.Constraint("Coincident", 3, 2, 0, 1))
sketch3.addConstraint(Sketcher.Constraint("Coincident", 4, 2, 5, 1))
sketch3.addConstraint(Sketcher.Constraint("Coincident", 5, 2, 6, 1))
sketch3.addConstraint(Sketcher.Constraint("Coincident", 6, 2, 7, 1))
sketch3.addConstraint(Sketcher.Constraint("Coincident", 7, 2, 4, 1))
sketch3.addConstraint(Sketcher.Constraint("Coincident", 8, 2, 9, 1))
sketch3.addConstraint(Sketcher.Constraint("Coincident", 9, 2, 10, 1))
sketch3.addConstraint(Sketcher.Constraint("Coincident", 10, 2, 11, 1))
sketch3.addConstraint(Sketcher.Constraint("Coincident", 11, 2, 8, 1))
sketch3.addConstraint(Sketcher.Constraint("Coincident", 12, 2, 13, 1))
sketch3.addConstraint(Sketcher.Constraint("Coincident", 13, 2, 14, 1))
sketch3.addConstraint(Sketcher.Constraint("Coincident", 14, 2, 15, 1))
sketch3.addConstraint(Sketcher.Constraint("Coincident", 15, 2, 12, 1))
sketch3.addConstraint(Sketcher.Constraint("Coincident", 16, 2, 17, 1))
sketch3.addConstraint(Sketcher.Constraint("Coincident", 17, 2, 18, 1))
sketch3.addConstraint(Sketcher.Constraint("Coincident", 18, 2, 19, 1))
sketch3.addConstraint(Sketcher.Constraint("Coincident", 19, 2, 16, 1))
sketch3.addConstraint(Sketcher.Constraint("Coincident", 20, 2, 21, 1))
sketch3.addConstraint(Sketcher.Constraint("Coincident", 21, 2, 22, 1))
sketch3.addConstraint(Sketcher.Constraint("Coincident", 22, 2, 23, 1))
sketch3.addConstraint(Sketcher.Constraint("Coincident", 23, 2, 20, 1))
sketch3.addConstraint(Sketcher.Constraint("Coincident", 24, 2, 25, 1))
sketch3.addConstraint(Sketcher.Constraint("Coincident", 25, 2, 26, 1))
sketch3.addConstraint(Sketcher.Constraint("Coincident", 26, 2, 27, 1))
sketch3.addConstraint(Sketcher.Constraint("Coincident", 27, 2, 24, 1))
sketch3.addConstraint(Sketcher.Constraint("Coincident", 28, 2, 29, 1))
sketch3.addConstraint(Sketcher.Constraint("Coincident", 29, 2, 30, 1))
sketch3.addConstraint(Sketcher.Constraint("Coincident", 30, 2, 31, 1))
sketch3.addConstraint(Sketcher.Constraint("Coincident", 31, 2, 28, 1))
sketch3.addConstraint(Sketcher.Constraint("Coincident", 32, 2, 33, 1))
sketch3.addConstraint(Sketcher.Constraint("Coincident", 33, 2, 34, 1))
sketch3.addConstraint(Sketcher.Constraint("Coincident", 34, 2, 35, 1))
sketch3.addConstraint(Sketcher.Constraint("Coincident", 35, 2, 32, 1))
sketch3.addConstraint(Sketcher.Constraint("Coincident", 36, 2, 37, 1))
sketch3.addConstraint(Sketcher.Constraint("Coincident", 37, 2, 38, 1))
sketch3.addConstraint(Sketcher.Constraint("Coincident", 38, 2, 39, 1))
sketch3.addConstraint(Sketcher.Constraint("Coincident", 39, 2, 36, 1))
sketch3.addConstraint(Sketcher.Constraint("Coincident", 40, 2, 41, 1))
sketch3.addConstraint(Sketcher.Constraint("Coincident", 41, 2, 42, 1))
sketch3.addConstraint(Sketcher.Constraint("Coincident", 42, 2, 43, 1))
sketch3.addConstraint(Sketcher.Constraint("Coincident", 43, 2, 40, 1))
sketch3.addConstraint(Sketcher.Constraint("Coincident", 44, 2, 45, 1))
sketch3.addConstraint(Sketcher.Constraint("Coincident", 45, 2, 46, 1))
sketch3.addConstraint(Sketcher.Constraint("Coincident", 46, 2, 47, 1))
sketch3.addConstraint(Sketcher.Constraint("Coincident", 47, 2, 44, 1))
sketch3.addConstraint(Sketcher.Constraint("Coincident", 48, 2, 49, 1))
sketch3.addConstraint(Sketcher.Constraint("Coincident", 49, 2, 50, 1))
sketch3.addConstraint(Sketcher.Constraint("Coincident", 50, 2, 51, 1))
sketch3.addConstraint(Sketcher.Constraint("Coincident", 51, 2, 48, 1))
sketch3.addConstraint(Sketcher.Constraint("Coincident", 52, 2, 53, 1))
sketch3.addConstraint(Sketcher.Constraint("Coincident", 53, 2, 54, 1))
sketch3.addConstraint(Sketcher.Constraint("Coincident", 54, 2, 55, 1))
sketch3.addConstraint(Sketcher.Constraint("Coincident", 55, 2, 52, 1))
sketch3.addConstraint(Sketcher.Constraint("Coincident", 56, 2, 57, 1))
sketch3.addConstraint(Sketcher.Constraint("Coincident", 57, 2, 58, 1))
sketch3.addConstraint(Sketcher.Constraint("Coincident", 58, 2, 59, 1))
sketch3.addConstraint(Sketcher.Constraint("Coincident", 59, 2, 56, 1))
sketch3.addConstraint(Sketcher.Constraint("Coincident", 60, 2, 61, 1))
sketch3.addConstraint(Sketcher.Constraint("Coincident", 61, 2, 62, 1))
sketch3.addConstraint(Sketcher.Constraint("Coincident", 62, 2, 63, 1))
sketch3.addConstraint(Sketcher.Constraint("Coincident", 63, 2, 60, 1))
sketch3.addConstraint(Sketcher.Constraint("Coincident", 64, 2, 65, 1))
sketch3.addConstraint(Sketcher.Constraint("Coincident", 65, 2, 66, 1))
sketch3.addConstraint(Sketcher.Constraint("Coincident", 66, 2, 67, 1))
sketch3.addConstraint(Sketcher.Constraint("Coincident", 67, 2, 64, 1))
sketch3.addConstraint(Sketcher.Constraint("Coincident", 68, 2, 69, 1))
sketch3.addConstraint(Sketcher.Constraint("Coincident", 69, 2, 70, 1))
sketch3.addConstraint(Sketcher.Constraint("Coincident", 70, 2, 71, 1))
sketch3.addConstraint(Sketcher.Constraint("Coincident", 71, 2, 68, 1))
sketch3.addConstraint(Sketcher.Constraint("Coincident", 72, 2, 73, 1))
sketch3.addConstraint(Sketcher.Constraint("Coincident", 73, 2, 74, 1))
sketch3.addConstraint(Sketcher.Constraint("Coincident", 74, 2, 75, 1))
sketch3.addConstraint(Sketcher.Constraint("Coincident", 75, 2, 72, 1))
sketch3.addConstraint(Sketcher.Constraint("Coincident", 76, 2, 77, 1))
sketch3.addConstraint(Sketcher.Constraint("Coincident", 77, 2, 78, 1))
sketch3.addConstraint(Sketcher.Constraint("Coincident", 78, 2, 79, 1))
sketch3.addConstraint(Sketcher.Constraint("Coincident", 79, 2, 76, 1))
sketch3.addConstraint(Sketcher.Constraint("Vertical", 0))
sketch3.addConstraint(Sketcher.Constraint("Horizontal", 1))
sketch3.addConstraint(Sketcher.Constraint("Vertical", 2))
sketch3.addConstraint(Sketcher.Constraint("Horizontal", 3))
sketch3.addConstraint(Sketcher.Constraint("Vertical", 4))
sketch3.addConstraint(Sketcher.Constraint("Horizontal", 5))
sketch3.addConstraint(Sketcher.Constraint("Vertical", 6))
sketch3.addConstraint(Sketcher.Constraint("Horizontal", 7))
sketch3.addConstraint(Sketcher.Constraint("Vertical", 8))
sketch3.addConstraint(Sketcher.Constraint("Horizontal", 9))
sketch3.addConstraint(Sketcher.Constraint("Vertical", 10))
sketch3.addConstraint(Sketcher.Constraint("Horizontal", 11))
sketch3.addConstraint(Sketcher.Constraint("Vertical", 12))
sketch3.addConstraint(Sketcher.Constraint("Horizontal", 13))
sketch3.addConstraint(Sketcher.Constraint("Vertical", 14))
sketch3.addConstraint(Sketcher.Constraint("Horizontal", 15))
sketch3.addConstraint(Sketcher.Constraint("Vertical", 16))
sketch3.addConstraint(Sketcher.Constraint("Horizontal", 17))
sketch3.addConstraint(Sketcher.Constraint("Vertical", 18))
sketch3.addConstraint(Sketcher.Constraint("Horizontal", 19))
sketch3.addConstraint(Sketcher.Constraint("Vertical", 20))
sketch3.addConstraint(Sketcher.Constraint("Horizontal", 21))
sketch3.addConstraint(Sketcher.Constraint("Vertical", 22))
sketch3.addConstraint(Sketcher.Constraint("Horizontal", 23))
sketch3.addConstraint(Sketcher.Constraint("Vertical", 24))
sketch3.addConstraint(Sketcher.Constraint("Horizontal", 25))
sketch3.addConstraint(Sketcher.Constraint("Vertical", 26))
sketch3.addConstraint(Sketcher.Constraint("Horizontal", 27))
sketch3.addConstraint(Sketcher.Constraint("Vertical", 28))
sketch3.addConstraint(Sketcher.Constraint("Horizontal", 29))
sketch3.addConstraint(Sketcher.Constraint("Vertical", 30))
sketch3.addConstraint(Sketcher.Constraint("Horizontal", 31))
sketch3.addConstraint(Sketcher.Constraint("Vertical", 32))
sketch3.addConstraint(Sketcher.Constraint("Horizontal", 33))
sketch3.addConstraint(Sketcher.Constraint("Vertical", 34))
sketch3.addConstraint(Sketcher.Constraint("Horizontal", 35))
sketch3.addConstraint(Sketcher.Constraint("Vertical", 36))
sketch3.addConstraint(Sketcher.Constraint("Horizontal", 37))
sketch3.addConstraint(Sketcher.Constraint("Vertical", 38))
sketch3.addConstraint(Sketcher.Constraint("Horizontal", 39))
sketch3.addConstraint(Sketcher.Constraint("Vertical", 40))
sketch3.addConstraint(Sketcher.Constraint("Horizontal", 41))
sketch3.addConstraint(Sketcher.Constraint("Vertical", 42))
sketch3.addConstraint(Sketcher.Constraint("Horizontal", 43))
sketch3.addConstraint(Sketcher.Constraint("Vertical", 44))
sketch3.addConstraint(Sketcher.Constraint("Horizontal", 45))
sketch3.addConstraint(Sketcher.Constraint("Vertical", 46))
sketch3.addConstraint(Sketcher.Constraint("Horizontal", 47))
sketch3.addConstraint(Sketcher.Constraint("Vertical", 48))
sketch3.addConstraint(Sketcher.Constraint("Horizontal", 49))
sketch3.addConstraint(Sketcher.Constraint("Vertical", 50))
sketch3.addConstraint(Sketcher.Constraint("Horizontal", 51))
sketch3.addConstraint(Sketcher.Constraint("Vertical", 52))
sketch3.addConstraint(Sketcher.Constraint("Horizontal", 53))
sketch3.addConstraint(Sketcher.Constraint("Vertical", 54))
sketch3.addConstraint(Sketcher.Constraint("Horizontal", 55))
sketch3.addConstraint(Sketcher.Constraint("Vertical", 56))
sketch3.addConstraint(Sketcher.Constraint("Horizontal", 57))
sketch3.addConstraint(Sketcher.Constraint("Vertical", 58))
sketch3.addConstraint(Sketcher.Constraint("Horizontal", 59))
sketch3.addConstraint(Sketcher.Constraint("Vertical", 60))
sketch3.addConstraint(Sketcher.Constraint("Horizontal", 61))
sketch3.addConstraint(Sketcher.Constraint("Vertical", 62))
sketch3.addConstraint(Sketcher.Constraint("Horizontal", 63))
sketch3.addConstraint(Sketcher.Constraint("Vertical", 64))
sketch3.addConstraint(Sketcher.Constraint("Horizontal", 65))
sketch3.addConstraint(Sketcher.Constraint("Vertical", 66))
sketch3.addConstraint(Sketcher.Constraint("Horizontal", 67))
sketch3.addConstraint(Sketcher.Constraint("Vertical", 68))
sketch3.addConstraint(Sketcher.Constraint("Horizontal", 69))
sketch3.addConstraint(Sketcher.Constraint("Vertical", 70))
sketch3.addConstraint(Sketcher.Constraint("Horizontal", 71))
sketch3.addConstraint(Sketcher.Constraint("Vertical", 72))
sketch3.addConstraint(Sketcher.Constraint("Horizontal", 73))
sketch3.addConstraint(Sketcher.Constraint("Vertical", 74))
sketch3.addConstraint(Sketcher.Constraint("Horizontal", 75))
sketch3.addConstraint(Sketcher.Constraint("Vertical", 76))
sketch3.addConstraint(Sketcher.Constraint("Horizontal", 77))
sketch3.addConstraint(Sketcher.Constraint("Vertical", 78))
sketch3.addConstraint(Sketcher.Constraint("Horizontal", 79))
sketch3.addConstraint(Sketcher.Constraint("Symmetric", 17, 2, 20, 2, -2))
sketch3.addConstraint(Sketcher.Constraint("Symmetric", 19, 2, 22, 2, -2))
sketch3.addConstraint(Sketcher.Constraint("Symmetric", 13, 2, 24, 2, -2))
sketch3.addConstraint(Sketcher.Constraint("Symmetric", 15, 2, 26, 2, -2))
sketch3.addConstraint(Sketcher.Constraint("Symmetric", 9, 2, 28, 2, -2))
sketch3.addConstraint(Sketcher.Constraint("Symmetric", 11, 2, 30, 2, -2))
sketch3.addConstraint(Sketcher.Constraint("Symmetric", 5, 2, 32, 2, -2))
sketch3.addConstraint(Sketcher.Constraint("Symmetric", 7, 2, 34, 2, -2))
sketch3.addConstraint(Sketcher.Constraint("Symmetric", 1, 2, 36, 2, -2))
sketch3.addConstraint(Sketcher.Constraint("Symmetric", 3, 2, 38, 2, -2))
sketch3.addConstraint(Sketcher.Constraint("Symmetric", 57, 2, 60, 2, -2))
sketch3.addConstraint(Sketcher.Constraint("Symmetric", 59, 2, 62, 2, -2))
sketch3.addConstraint(Sketcher.Constraint("Symmetric", 53, 2, 64, 2, -2))
sketch3.addConstraint(Sketcher.Constraint("Symmetric", 55, 2, 66, 2, -2))
sketch3.addConstraint(Sketcher.Constraint("Symmetric", 49, 2, 68, 2, -2))
sketch3.addConstraint(Sketcher.Constraint("Symmetric", 51, 2, 70, 2, -2))
sketch3.addConstraint(Sketcher.Constraint("Symmetric", 45, 2, 72, 2, -2))
sketch3.addConstraint(Sketcher.Constraint("Symmetric", 47, 2, 74, 2, -2))
sketch3.addConstraint(Sketcher.Constraint("Symmetric", 41, 2, 76, 2, -2))
sketch3.addConstraint(Sketcher.Constraint("Symmetric", 43, 2, 78, 2, -2))
sketch3.addConstraint(Sketcher.Constraint("Horizontal", 1, 2, 4, 2))
sketch3.addConstraint(Sketcher.Constraint("Horizontal", 3, 2, 6, 2))
sketch3.addConstraint(Sketcher.Constraint("Horizontal", 5, 2, 8, 2))
sketch3.addConstraint(Sketcher.Constraint("Horizontal", 7, 2, 10, 2))
sketch3.addConstraint(Sketcher.Constraint("Horizontal", 9, 2, 12, 2))
sketch3.addConstraint(Sketcher.Constraint("Horizontal", 11, 2, 14, 2))
sketch3.addConstraint(Sketcher.Constraint("Horizontal", 13, 2, 16, 2))
sketch3.addConstraint(Sketcher.Constraint("Horizontal", 15, 2, 18, 2))
sketch3.addConstraint(Sketcher.Constraint("Horizontal", 41, 2, 44, 2))
sketch3.addConstraint(Sketcher.Constraint("Horizontal", 43, 2, 46, 2))
sketch3.addConstraint(Sketcher.Constraint("Horizontal", 45, 2, 48, 2))
sketch3.addConstraint(Sketcher.Constraint("Horizontal", 47, 2, 50, 2))
sketch3.addConstraint(Sketcher.Constraint("Horizontal", 49, 2, 52, 2))
sketch3.addConstraint(Sketcher.Constraint("Horizontal", 51, 2, 54, 2))
sketch3.addConstraint(Sketcher.Constraint("Horizontal", 53, 2, 56, 2))
sketch3.addConstraint(Sketcher.Constraint("Horizontal", 55, 2, 58, 2))
sketch3.addConstraint(Sketcher.Constraint("Vertical", 3, 2, 40, 2))
sketch3.addConstraint(Sketcher.Constraint("Vertical", 2, 2, 41, 2))
sketch3.addConstraint(Sketcher.Constraint("Vertical", 7, 2, 44, 2))
sketch3.addConstraint(Sketcher.Constraint("Vertical", 6, 2, 45, 2))
sketch3.addConstraint(Sketcher.Constraint("Vertical", 11, 2, 48, 2))
sketch3.addConstraint(Sketcher.Constraint("Vertical", 10, 2, 49, 2))
sketch3.addConstraint(Sketcher.Constraint("Vertical", 15, 2, 52, 2))
sketch3.addConstraint(Sketcher.Constraint("Vertical", 14, 2, 53, 2))
sketch3.addConstraint(Sketcher.Constraint("Vertical", 19, 2, 56, 2))
sketch3.addConstraint(Sketcher.Constraint("Vertical", 18, 2, 57, 2))
sketch3.addConstraint(Sketcher.Constraint("Equal", 3, 5))
sketch3.addConstraint(Sketcher.Constraint("Equal", 7, 9))
sketch3.addConstraint(Sketcher.Constraint("Equal", 11, 13))
sketch3.addConstraint(Sketcher.Constraint("Equal", 15, 17))
sketch3.addConstraint(Sketcher.Constraint("Equal", 38, 40))
sketch3.addConstraint(Sketcher.Constraint("DistanceX", 1, 2, 1, 1, 1.8))
sketch3.addConstraint(Sketcher.Constraint("DistanceY", 0, 2, 0, 1, 1.1))
sketch3.addConstraint(Sketcher.Constraint("DistanceY", -1, 1, 0, 2, 1.4))
sketch3.addConstraint(Sketcher.Constraint("DistanceY", 40, 2, -1, 1, 4.7))
sketch3.addConstraint(Sketcher.Constraint("DistanceX", -1, 1, 0, 2, 16.65))
sketch3.addConstraint(Sketcher.Constraint("DistanceX", -1, 1, 4, 2, 13.15))
sketch3.addConstraint(Sketcher.Constraint("DistanceX", -1, 1, 8, 2, 9.65))
sketch3.addConstraint(Sketcher.Constraint("DistanceX", -1, 1, 12, 2, 6.15))
sketch3.addConstraint(Sketcher.Constraint("DistanceX", -1, 1, 16, 2, 2.65))
pocket2 = doc.addObject("PartDesign::Pocket", "Pocket001")
body.addObject(pocket2)
pocket2.Profile = sketch3
pocket2.Length = 7
pocket2.Reversed = True

doc.recompute()
